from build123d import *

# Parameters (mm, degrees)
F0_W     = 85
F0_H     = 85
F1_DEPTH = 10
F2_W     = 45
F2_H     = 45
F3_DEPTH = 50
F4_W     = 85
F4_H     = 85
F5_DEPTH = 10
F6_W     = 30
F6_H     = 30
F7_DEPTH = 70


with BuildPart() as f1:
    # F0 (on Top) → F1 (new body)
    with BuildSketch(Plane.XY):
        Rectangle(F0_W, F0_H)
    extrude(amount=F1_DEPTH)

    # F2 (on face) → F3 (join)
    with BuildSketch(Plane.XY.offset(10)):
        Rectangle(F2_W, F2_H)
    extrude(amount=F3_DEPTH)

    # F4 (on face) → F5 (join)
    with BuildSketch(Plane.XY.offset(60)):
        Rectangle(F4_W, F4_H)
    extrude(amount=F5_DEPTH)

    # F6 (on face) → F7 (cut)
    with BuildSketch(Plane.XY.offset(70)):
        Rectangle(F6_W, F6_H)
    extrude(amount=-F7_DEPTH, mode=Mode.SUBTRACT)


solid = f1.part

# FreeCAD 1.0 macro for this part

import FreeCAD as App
import Part
import Sketcher
from FreeCAD import Vector
Q = App.Units.Quantity


def add_polygon(sketch, points):
    """Adds a closed chain of lines whose ends are joined by coincident constraints."""
    first, n = sketch.GeometryCount, len(points)
    for a, b in zip(points, points[1:] + points[:1]):
        sketch.addGeometry(Part.LineSegment(App.Vector(*a, 0), App.Vector(*b, 0)), False)
    for i in range(n):
        sketch.addConstraint(Sketcher.Constraint("Coincident", first + i, 2, first + (i + 1) % n, 1))

doc = App.newDocument("Part")
body = doc.addObject("PartDesign::Body", "Body")

sketch1 = body.newObject("Sketcher::SketchObject", "Sketch")
sketch1.AttachmentSupport = (doc.getObject("XY_Plane"), [""])
sketch1.MapMode = "FlatFace"
add_polygon(sketch1, [(-42.5, 42.5), (-42.5, -42.5), (42.5, -42.5), (42.5, 42.5)])
sketch1.addConstraint([
    Sketcher.Constraint("Vertical", 0),
    Sketcher.Constraint("Horizontal", 1),
    Sketcher.Constraint("Vertical", 2),
    Sketcher.Constraint("Horizontal", 3),
    Sketcher.Constraint("Symmetric", 0, 2, 2, 2, -1, 1),
    Sketcher.Constraint("Equal", 3, 0),
    Sketcher.Constraint("DistanceX", 1, 1, 1, 2, Q("85 mm")),
])
pad1 = body.newObject("PartDesign::Pad", "Pad")
pad1.Profile = sketch1
pad1.Length = 10

sketch2 = body.newObject("Sketcher::SketchObject", "Sketch001")
sketch2.AttachmentSupport = (doc.getObject("XY_Plane"), [""])
sketch2.MapMode = "FlatFace"
sketch2.AttachmentOffset = App.Placement(Vector(0, 0, 10), App.Rotation())
add_polygon(sketch2, [(-22.5, 22.5), (-22.5, -22.5), (22.5, -22.5), (22.5, 22.5)])
sketch2.addConstraint([
    Sketcher.Constraint("Vertical", 0),
    Sketcher.Constraint("Horizontal", 1),
    Sketcher.Constraint("Vertical", 2),
    Sketcher.Constraint("Horizontal", 3),
    Sketcher.Constraint("Symmetric", 0, 2, 2, 2, -1, 1),
    Sketcher.Constraint("Equal", 3, 0),
    Sketcher.Constraint("DistanceX", 1, 1, 1, 2, Q("45 mm")),
])
pad2 = body.newObject("PartDesign::Pad", "Pad001")
pad2.Profile = sketch2
pad2.Length = 50

sketch3 = body.newObject("Sketcher::SketchObject", "Sketch002")
sketch3.AttachmentSupport = (doc.getObject("XY_Plane"), [""])
sketch3.MapMode = "FlatFace"
sketch3.AttachmentOffset = App.Placement(Vector(0, 0, 60), App.Rotation())
add_polygon(sketch3, [(-42.5, 42.5), (-42.5, -42.5), (42.5, -42.5), (42.5, 42.5)])
sketch3.addConstraint([
    Sketcher.Constraint("Vertical", 0),
    Sketcher.Constraint("Horizontal", 1),
    Sketcher.Constraint("Vertical", 2),
    Sketcher.Constraint("Horizontal", 3),
    Sketcher.Constraint("Symmetric", 0, 2, 2, 2, -1, 1),
    Sketcher.Constraint("Equal", 3, 0),
    Sketcher.Constraint("DistanceX", 1, 1, 1, 2, Q("85 mm")),
])
pad3 = body.newObject("PartDesign::Pad", "Pad002")
pad3.Profile = sketch3
pad3.Length = 10

sketch4 = body.newObject("Sketcher::SketchObject", "Sketch003")
sketch4.AttachmentSupport = (doc.getObject("XY_Plane"), [""])
sketch4.MapMode = "FlatFace"
sketch4.AttachmentOffset = App.Placement(Vector(0, 0, 70), App.Rotation())
add_polygon(sketch4, [(-15, 15), (-15, -15), (15, -15), (15, 15)])
sketch4.addConstraint([
    Sketcher.Constraint("Vertical", 0),
    Sketcher.Constraint("Horizontal", 1),
    Sketcher.Constraint("Vertical", 2),
    Sketcher.Constraint("Horizontal", 3),
    Sketcher.Constraint("Symmetric", 0, 2, 2, 2, -1, 1),
    Sketcher.Constraint("Equal", 3, 0),
    Sketcher.Constraint("DistanceX", 1, 1, 1, 2, Q("30 mm")),
])
pocket1 = body.newObject("PartDesign::Pocket", "Pocket")
pocket1.Profile = sketch4
pocket1.Length = 70

doc.recompute()
